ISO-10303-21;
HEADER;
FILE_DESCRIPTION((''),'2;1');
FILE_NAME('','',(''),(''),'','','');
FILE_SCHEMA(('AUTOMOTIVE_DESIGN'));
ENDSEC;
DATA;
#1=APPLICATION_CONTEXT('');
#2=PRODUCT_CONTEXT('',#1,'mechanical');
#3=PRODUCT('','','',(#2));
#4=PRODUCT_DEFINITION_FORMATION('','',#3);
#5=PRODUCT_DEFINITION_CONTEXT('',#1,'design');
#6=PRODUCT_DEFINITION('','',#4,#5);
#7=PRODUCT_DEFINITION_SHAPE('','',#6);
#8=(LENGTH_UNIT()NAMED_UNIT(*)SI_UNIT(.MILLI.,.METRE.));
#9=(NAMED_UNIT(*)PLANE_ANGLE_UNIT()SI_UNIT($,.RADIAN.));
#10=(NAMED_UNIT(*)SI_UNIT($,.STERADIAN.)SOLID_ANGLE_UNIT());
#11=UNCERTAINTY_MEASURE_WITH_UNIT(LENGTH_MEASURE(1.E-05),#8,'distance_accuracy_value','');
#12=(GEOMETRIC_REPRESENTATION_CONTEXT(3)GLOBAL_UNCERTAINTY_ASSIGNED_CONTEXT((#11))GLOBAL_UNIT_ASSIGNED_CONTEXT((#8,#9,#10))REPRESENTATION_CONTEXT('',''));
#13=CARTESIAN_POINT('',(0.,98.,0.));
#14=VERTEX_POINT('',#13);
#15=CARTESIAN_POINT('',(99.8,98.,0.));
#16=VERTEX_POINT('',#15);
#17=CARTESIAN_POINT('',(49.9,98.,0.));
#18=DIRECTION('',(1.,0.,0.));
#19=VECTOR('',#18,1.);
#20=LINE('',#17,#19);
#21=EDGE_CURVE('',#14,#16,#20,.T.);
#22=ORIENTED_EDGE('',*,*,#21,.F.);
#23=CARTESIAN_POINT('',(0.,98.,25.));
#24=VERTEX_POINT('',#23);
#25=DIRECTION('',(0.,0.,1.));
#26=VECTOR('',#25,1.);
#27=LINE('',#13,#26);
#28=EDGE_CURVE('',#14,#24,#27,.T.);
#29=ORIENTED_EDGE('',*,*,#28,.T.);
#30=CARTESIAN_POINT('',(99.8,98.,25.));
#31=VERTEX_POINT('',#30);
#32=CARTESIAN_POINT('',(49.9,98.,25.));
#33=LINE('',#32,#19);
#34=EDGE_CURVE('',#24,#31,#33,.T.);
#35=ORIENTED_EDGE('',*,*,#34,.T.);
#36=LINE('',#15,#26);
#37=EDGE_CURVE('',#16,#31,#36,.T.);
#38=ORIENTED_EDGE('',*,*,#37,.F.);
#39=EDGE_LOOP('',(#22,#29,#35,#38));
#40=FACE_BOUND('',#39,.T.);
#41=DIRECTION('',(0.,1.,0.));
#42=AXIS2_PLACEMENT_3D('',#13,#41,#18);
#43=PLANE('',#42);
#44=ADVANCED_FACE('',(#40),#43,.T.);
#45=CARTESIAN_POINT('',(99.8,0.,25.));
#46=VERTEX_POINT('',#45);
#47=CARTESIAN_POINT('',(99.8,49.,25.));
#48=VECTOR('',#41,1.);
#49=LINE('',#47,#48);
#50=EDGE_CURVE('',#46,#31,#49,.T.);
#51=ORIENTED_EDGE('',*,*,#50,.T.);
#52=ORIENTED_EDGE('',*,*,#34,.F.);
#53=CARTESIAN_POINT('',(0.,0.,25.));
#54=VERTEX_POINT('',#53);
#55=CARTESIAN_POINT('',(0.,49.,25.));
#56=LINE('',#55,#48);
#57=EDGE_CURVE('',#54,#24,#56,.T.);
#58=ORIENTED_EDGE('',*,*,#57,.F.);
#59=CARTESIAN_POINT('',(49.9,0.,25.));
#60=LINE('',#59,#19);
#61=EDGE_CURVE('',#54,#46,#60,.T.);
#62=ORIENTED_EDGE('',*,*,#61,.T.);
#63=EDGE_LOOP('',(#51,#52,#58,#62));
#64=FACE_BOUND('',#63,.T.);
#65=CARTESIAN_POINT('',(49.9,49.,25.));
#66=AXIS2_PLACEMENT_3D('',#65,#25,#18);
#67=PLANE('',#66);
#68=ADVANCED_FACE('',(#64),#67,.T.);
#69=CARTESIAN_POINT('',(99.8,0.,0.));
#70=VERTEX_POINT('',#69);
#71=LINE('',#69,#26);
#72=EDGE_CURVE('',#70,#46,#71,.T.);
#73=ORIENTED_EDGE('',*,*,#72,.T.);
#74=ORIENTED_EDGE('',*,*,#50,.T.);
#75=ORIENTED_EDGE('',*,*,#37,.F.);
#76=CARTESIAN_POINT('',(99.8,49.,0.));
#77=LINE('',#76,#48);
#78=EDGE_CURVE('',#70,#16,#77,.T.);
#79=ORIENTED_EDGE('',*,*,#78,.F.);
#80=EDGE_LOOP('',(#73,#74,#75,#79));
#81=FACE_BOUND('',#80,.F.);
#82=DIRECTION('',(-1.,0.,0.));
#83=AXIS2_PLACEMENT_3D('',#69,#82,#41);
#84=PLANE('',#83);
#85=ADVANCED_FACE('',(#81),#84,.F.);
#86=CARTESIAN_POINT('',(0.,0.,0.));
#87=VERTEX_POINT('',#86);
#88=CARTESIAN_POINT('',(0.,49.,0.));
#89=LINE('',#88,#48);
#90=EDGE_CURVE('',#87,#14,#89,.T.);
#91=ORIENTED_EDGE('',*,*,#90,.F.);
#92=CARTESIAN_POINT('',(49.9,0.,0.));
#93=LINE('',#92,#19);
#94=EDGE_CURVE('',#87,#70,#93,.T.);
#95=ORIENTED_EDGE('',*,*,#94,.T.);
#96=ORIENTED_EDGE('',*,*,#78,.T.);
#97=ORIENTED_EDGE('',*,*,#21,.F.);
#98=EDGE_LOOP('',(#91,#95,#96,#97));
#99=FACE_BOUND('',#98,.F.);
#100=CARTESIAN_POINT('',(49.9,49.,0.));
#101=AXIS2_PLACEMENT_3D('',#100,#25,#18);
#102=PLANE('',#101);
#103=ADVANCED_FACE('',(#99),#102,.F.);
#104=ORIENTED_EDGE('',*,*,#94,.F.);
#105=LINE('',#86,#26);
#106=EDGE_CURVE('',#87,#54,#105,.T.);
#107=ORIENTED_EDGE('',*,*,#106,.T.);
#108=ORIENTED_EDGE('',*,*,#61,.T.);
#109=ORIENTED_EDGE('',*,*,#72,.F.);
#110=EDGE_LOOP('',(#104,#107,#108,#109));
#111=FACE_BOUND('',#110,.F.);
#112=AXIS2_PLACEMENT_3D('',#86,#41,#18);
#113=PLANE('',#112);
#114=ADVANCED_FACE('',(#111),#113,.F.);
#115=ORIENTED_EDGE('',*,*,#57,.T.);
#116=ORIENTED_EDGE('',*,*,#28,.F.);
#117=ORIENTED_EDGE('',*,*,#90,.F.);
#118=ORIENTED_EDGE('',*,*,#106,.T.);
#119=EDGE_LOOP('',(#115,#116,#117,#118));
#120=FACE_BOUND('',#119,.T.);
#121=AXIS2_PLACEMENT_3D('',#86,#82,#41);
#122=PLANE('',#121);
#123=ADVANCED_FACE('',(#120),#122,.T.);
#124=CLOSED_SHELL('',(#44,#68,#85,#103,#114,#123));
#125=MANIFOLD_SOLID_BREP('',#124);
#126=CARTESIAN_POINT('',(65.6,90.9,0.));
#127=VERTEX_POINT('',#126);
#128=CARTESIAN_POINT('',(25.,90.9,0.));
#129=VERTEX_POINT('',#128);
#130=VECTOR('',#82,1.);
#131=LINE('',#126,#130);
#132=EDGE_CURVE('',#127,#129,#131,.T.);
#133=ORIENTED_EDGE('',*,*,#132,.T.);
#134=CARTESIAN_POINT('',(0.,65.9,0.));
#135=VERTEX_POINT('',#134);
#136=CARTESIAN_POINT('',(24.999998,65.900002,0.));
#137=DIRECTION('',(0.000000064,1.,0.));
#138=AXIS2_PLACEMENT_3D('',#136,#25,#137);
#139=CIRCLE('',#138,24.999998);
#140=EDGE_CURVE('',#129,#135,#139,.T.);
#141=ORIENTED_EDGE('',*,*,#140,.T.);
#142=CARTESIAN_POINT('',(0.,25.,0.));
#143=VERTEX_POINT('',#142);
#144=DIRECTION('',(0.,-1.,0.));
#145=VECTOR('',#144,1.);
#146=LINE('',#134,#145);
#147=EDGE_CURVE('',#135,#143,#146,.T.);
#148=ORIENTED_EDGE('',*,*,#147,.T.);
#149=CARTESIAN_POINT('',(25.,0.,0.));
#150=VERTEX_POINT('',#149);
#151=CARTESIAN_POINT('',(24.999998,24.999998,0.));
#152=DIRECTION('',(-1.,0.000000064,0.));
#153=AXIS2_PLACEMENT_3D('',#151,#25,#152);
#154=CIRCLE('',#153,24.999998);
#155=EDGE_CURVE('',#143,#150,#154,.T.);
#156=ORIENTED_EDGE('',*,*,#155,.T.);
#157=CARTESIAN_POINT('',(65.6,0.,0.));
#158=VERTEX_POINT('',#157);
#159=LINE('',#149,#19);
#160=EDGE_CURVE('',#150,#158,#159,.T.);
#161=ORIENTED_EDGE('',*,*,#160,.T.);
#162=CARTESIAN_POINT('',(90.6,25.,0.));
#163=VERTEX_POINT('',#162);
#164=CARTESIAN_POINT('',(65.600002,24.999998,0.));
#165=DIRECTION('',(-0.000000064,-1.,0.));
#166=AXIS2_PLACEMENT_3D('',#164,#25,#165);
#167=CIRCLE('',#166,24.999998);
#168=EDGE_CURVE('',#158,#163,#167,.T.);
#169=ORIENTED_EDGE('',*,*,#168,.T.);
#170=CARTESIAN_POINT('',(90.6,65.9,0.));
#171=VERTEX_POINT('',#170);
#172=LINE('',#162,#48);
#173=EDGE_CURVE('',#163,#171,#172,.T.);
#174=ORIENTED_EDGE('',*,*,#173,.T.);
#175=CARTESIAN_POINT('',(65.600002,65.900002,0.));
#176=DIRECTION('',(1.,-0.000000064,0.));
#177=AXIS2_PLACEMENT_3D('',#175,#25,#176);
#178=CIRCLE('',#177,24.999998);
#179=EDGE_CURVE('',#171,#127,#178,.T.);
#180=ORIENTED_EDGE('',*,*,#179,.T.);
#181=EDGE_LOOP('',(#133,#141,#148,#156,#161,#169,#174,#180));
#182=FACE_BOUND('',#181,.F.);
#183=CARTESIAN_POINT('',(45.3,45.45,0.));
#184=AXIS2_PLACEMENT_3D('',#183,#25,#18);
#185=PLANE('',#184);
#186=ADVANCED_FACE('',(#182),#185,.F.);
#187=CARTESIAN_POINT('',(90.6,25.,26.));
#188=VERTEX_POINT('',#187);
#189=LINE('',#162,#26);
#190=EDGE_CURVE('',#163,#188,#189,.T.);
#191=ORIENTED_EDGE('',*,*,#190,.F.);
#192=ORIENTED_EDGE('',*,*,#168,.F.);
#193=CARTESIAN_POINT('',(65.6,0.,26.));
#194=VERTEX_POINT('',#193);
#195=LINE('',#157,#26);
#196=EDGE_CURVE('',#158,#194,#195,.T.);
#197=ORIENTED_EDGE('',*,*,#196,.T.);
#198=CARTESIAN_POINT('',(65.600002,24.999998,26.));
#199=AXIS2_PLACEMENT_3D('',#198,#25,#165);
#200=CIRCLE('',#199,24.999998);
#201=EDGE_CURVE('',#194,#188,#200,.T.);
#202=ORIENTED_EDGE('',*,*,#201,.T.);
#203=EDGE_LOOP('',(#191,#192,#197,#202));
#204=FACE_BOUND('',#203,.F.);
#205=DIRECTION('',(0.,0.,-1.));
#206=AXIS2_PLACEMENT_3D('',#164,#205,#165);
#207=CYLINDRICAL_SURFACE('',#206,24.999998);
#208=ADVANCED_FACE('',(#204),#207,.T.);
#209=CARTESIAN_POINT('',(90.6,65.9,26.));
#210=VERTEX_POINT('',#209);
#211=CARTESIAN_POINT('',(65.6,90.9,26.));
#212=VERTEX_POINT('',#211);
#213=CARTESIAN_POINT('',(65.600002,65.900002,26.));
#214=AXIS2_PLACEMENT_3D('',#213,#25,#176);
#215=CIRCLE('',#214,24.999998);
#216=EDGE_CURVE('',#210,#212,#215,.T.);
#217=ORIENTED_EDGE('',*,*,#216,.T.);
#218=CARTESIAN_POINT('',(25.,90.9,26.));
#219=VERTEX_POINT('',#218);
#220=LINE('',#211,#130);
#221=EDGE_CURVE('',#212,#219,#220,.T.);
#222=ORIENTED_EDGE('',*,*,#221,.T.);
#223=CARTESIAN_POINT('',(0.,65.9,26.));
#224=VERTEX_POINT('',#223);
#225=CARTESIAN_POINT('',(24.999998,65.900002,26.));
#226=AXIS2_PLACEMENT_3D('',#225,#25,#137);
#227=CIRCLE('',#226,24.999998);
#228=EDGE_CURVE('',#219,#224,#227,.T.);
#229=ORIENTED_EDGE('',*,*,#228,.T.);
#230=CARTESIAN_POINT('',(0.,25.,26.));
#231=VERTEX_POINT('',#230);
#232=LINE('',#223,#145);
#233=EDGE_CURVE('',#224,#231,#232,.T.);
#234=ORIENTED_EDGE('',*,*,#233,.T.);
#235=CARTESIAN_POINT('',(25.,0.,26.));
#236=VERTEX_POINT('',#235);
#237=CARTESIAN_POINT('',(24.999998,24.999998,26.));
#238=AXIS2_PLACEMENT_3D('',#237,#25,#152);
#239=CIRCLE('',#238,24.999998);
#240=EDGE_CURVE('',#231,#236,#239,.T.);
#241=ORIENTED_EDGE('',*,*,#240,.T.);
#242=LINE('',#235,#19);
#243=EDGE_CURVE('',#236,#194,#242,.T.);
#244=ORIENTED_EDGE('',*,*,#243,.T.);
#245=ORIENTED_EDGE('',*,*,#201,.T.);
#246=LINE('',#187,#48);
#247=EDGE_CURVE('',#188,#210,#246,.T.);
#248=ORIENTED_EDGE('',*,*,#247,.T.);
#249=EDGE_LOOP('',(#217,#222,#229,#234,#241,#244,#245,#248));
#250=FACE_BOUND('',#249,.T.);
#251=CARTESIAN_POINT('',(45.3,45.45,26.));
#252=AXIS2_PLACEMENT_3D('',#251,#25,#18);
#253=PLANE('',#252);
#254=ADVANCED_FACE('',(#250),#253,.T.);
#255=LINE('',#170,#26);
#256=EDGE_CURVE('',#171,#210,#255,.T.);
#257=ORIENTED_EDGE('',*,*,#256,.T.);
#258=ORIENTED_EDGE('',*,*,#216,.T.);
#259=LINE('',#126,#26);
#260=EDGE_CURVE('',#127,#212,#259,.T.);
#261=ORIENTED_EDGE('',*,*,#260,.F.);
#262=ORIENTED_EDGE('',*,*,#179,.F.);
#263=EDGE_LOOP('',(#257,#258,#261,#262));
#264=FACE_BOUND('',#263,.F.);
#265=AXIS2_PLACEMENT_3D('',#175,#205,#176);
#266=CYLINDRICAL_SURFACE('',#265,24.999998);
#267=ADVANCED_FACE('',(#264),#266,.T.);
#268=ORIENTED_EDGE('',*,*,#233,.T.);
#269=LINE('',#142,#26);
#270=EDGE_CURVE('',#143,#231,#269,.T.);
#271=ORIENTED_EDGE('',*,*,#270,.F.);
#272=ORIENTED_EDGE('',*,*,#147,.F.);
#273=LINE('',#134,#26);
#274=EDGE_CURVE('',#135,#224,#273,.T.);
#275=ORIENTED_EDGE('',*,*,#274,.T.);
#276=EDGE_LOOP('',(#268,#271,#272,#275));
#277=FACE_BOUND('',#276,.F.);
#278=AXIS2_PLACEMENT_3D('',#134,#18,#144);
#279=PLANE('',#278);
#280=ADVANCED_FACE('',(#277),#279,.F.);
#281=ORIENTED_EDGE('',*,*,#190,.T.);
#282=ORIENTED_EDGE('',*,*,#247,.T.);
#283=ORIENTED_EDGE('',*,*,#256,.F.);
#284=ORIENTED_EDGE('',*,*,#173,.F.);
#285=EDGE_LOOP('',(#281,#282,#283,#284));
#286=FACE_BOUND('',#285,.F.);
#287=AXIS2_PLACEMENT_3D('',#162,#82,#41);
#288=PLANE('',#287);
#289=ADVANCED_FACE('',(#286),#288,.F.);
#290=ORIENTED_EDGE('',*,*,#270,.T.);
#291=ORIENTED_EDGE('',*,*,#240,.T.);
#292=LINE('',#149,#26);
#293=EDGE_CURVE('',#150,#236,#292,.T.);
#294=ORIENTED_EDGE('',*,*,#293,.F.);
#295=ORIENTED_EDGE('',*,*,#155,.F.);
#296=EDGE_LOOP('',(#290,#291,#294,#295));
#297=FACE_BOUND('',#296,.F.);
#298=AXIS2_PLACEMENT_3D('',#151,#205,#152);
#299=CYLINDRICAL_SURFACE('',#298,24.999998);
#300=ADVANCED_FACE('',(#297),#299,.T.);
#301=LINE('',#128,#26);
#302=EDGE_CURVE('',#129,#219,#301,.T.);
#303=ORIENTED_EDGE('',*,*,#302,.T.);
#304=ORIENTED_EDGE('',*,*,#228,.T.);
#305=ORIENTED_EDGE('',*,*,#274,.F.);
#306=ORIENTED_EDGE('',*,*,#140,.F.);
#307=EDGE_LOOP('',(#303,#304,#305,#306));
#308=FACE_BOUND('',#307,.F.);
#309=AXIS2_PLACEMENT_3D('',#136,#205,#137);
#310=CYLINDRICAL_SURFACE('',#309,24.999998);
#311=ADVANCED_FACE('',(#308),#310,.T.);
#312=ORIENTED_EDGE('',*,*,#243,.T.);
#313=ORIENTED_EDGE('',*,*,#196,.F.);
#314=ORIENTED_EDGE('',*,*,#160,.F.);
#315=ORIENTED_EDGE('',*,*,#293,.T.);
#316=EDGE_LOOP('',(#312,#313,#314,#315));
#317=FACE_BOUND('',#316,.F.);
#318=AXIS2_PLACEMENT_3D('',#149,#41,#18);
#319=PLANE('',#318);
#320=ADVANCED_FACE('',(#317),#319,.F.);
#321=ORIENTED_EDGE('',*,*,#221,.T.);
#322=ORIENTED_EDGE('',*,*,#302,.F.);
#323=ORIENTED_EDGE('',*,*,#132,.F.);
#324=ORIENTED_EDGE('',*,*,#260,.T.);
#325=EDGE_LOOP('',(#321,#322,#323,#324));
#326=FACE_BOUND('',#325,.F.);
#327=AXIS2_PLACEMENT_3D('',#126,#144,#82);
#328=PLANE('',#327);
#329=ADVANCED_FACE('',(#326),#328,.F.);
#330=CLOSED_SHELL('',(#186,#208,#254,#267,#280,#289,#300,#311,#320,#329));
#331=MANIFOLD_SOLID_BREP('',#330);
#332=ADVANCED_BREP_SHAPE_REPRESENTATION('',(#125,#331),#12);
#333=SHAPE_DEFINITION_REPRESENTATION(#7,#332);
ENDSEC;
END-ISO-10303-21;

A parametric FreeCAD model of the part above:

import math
import FreeCAD as App
import Part
import Sketcher

V = App.Vector
Q = App.Units.Quantity


def add_polygon(sketch, points):
    """Adds a closed chain of lines whose ends are joined by coincident constraints."""
    first, n = sketch.GeometryCount, len(points)
    for a, b in zip(points, points[1:] + points[:1]):
        sketch.addGeometry(Part.LineSegment(App.Vector(*a, 0), App.Vector(*b, 0)), False)
    for i in range(n):
        sketch.addConstraint(Sketcher.Constraint("Coincident", first + i, 2, first + (i + 1) % n, 1))

doc = App.newDocument("Part")
body = doc.addObject("PartDesign::Body", "Body")

# Sketch on XY plane
sketch1 = doc.addObject("Sketcher::SketchObject", "Sketch")
body.addObject(sketch1)
sketch1.AttachmentSupport = (doc.XY_Plane, [""])
sketch1.MapMode = "FlatFace"
add_polygon(sketch1, [(0, 98), (0, 0), (100, 0), (100, 98)])  # lines 0-3
sketch1.addConstraint([
    Sketcher.Constraint("Vertical", 0),
    Sketcher.Constraint("Horizontal", 1),
    Sketcher.Constraint("Vertical", 2),
    Sketcher.Constraint("Horizontal", 3),
    Sketcher.Constraint("Coincident", 0, 2, -1, 1),
    Sketcher.Constraint("DistanceY", 0, 2, 0, 1, Q("98 mm")),
    Sketcher.Constraint("DistanceX", 1, 1, 1, 2, Q("99.8 mm")),
])
pad1 = doc.addObject("PartDesign::Pad", "Pad")
body.addObject(pad1)
pad1.Profile = sketch1
pad1.Length = 25
body2 = doc.addObject("PartDesign::Body", "Body001")

# Sketch on XY plane
sketch2 = doc.addObject("Sketcher::SketchObject", "Sketch001")
body2.addObject(sketch2)
sketch2.AttachmentSupport = (doc.getObject("XY_Plane001"), [""])
sketch2.MapMode = "FlatFace"
sketch2.addGeometry([
    Part.LineSegment(V(25, 0, 0), V(66, 0, 0)),  # 0
    Part.ArcOfCircle(Part.Circle(V(66, 25, 0), V(0, 0, 1), 25), math.radians(-90), math.radians(0)),  # 1
    Part.LineSegment(V(91, 25, 0), V(91, 66, 0)),  # 2
    Part.ArcOfCircle(Part.Circle(V(66, 66, 0), V(0, 0, 1), 25), math.radians(0), math.radians(90)),  # 3
    Part.LineSegment(V(66, 91, 0), V(25, 91, 0)),  # 4
    Part.ArcOfCircle(Part.Circle(V(25, 66, 0), V(0, 0, 1), 25), math.radians(90), math.radians(180)),  # 5
    Part.LineSegment(V(0, 66, 0), V(0, 25, 0)),  # 6
    Part.ArcOfCircle(Part.Circle(V(25, 25, 0), V(0, 0, 1), 25), math.radians(180), math.radians(270)),  # 7
], False)
sketch2.addConstraint([
    Sketcher.Constraint("Tangent", 0, 2, 1, 1),
    Sketcher.Constraint("Tangent", 1, 2, 2, 1),
    Sketcher.Constraint("Tangent", 2, 2, 3, 1),
    Sketcher.Constraint("Tangent", 3, 2, 4, 1),
    Sketcher.Constraint("Tangent", 4, 2, 5, 1),
    Sketcher.Constraint("Tangent", 5, 2, 6, 1),
    Sketcher.Constraint("Tangent", 6, 2, 7, 1),
    Sketcher.Constraint("Tangent", 7, 2, 0, 1),
    Sketcher.Constraint("Horizontal", 0),
    Sketcher.Constraint("Vertical", 2),
    Sketcher.Constraint("Horizontal", 4),
    Sketcher.Constraint("Vertical", 6),
    Sketcher.Constraint("Equal", 1, 3),
    Sketcher.Constraint("Equal", 3, 5),
    Sketcher.Constraint("Equal", 5, 7),
    Sketcher.Constraint("PointOnObject", 0, 2, -1),
    Sketcher.Constraint("PointOnObject", 5, 2, -2),
    Sketcher.Constraint("Radius", 1, Q("24.999998 mm")),
    Sketcher.Constraint("DistanceX", 0, 1, 0, 2, Q("40.6 mm")),
    Sketcher.Constraint("DistanceY", 2, 1, 2, 2, Q("40.9 mm")),
])
pad2 = doc.addObject("PartDesign::Pad", "Pad001")
body2.addObject(pad2)
pad2.Profile = sketch2
pad2.Length = 26

doc.recompute()
